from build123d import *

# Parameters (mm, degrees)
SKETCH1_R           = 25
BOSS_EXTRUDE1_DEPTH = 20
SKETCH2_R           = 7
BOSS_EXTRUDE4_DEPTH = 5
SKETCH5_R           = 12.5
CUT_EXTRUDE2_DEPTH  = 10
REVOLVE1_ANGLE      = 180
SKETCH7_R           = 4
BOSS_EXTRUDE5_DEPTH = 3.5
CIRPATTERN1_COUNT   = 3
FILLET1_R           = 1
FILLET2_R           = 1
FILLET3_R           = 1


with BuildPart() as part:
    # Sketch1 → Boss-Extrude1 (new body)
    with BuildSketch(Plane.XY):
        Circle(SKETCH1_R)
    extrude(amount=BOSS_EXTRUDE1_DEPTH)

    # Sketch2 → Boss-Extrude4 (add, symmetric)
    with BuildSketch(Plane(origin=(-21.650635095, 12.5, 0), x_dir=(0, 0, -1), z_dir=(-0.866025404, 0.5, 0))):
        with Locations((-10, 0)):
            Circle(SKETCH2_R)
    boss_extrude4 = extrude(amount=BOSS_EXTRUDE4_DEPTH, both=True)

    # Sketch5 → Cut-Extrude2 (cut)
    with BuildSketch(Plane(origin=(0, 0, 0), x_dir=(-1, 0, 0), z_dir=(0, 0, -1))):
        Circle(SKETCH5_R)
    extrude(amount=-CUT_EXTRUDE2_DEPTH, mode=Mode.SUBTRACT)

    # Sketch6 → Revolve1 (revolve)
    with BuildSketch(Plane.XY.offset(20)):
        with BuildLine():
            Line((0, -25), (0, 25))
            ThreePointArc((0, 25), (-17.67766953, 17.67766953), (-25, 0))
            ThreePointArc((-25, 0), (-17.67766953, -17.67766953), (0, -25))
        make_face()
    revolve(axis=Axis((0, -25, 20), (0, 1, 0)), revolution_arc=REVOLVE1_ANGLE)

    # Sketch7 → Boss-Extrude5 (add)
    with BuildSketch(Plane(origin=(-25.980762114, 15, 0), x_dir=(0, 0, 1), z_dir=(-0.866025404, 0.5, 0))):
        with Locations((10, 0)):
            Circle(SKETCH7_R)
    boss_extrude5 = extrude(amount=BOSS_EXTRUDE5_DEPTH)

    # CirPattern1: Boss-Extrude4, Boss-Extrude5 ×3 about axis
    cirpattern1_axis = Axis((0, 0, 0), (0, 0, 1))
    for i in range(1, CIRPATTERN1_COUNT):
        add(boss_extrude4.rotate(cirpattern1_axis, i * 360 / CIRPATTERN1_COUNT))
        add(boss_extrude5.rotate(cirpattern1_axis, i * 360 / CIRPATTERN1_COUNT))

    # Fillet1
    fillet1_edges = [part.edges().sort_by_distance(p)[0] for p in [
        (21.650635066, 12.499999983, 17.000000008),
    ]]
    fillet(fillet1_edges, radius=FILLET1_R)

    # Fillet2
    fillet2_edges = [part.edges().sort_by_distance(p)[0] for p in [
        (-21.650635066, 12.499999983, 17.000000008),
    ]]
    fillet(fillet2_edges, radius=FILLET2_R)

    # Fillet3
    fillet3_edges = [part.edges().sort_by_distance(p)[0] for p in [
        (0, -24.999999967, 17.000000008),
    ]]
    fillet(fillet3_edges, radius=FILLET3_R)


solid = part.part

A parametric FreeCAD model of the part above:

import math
import FreeCAD as App
import Part
import Sketcher
from FreeCAD import Vector


def edges_at(feature, points):
    """Names of the edges that pass closest to the given points."""
    edges = feature.Shape.Edges
    near = lambda p: min(range(len(edges)), key=lambda i: edges[i].distToShape(Part.Vertex(*p))[0])
    return sorted({f"Edge{near(p) + 1}" for p in points})

doc = App.newDocument("Part")
body = doc.addObject("PartDesign::Body", "Body")

sketch1 = doc.addObject("Sketcher::SketchObject", "Sketch")
body.addObject(sketch1)
sketch1.AttachmentSupport = (doc.XY_Plane, [""])
sketch1.MapMode = "FlatFace"
sketch1.addGeometry(Part.Circle(Vector(0, 0, 0), Vector(0, 0, 1), 25), False)
sketch1.addConstraint(Sketcher.Constraint("Coincident", 0, 3, -1, 1))
sketch1.addConstraint(Sketcher.Constraint("Diameter", 0, 50.0))
pad1 = doc.addObject("PartDesign::Pad", "Pad")
body.addObject(pad1)
pad1.Profile = sketch1
pad1.Length = 20

sketch2 = doc.addObject("Sketcher::SketchObject", "Sketch001")
body.addObject(sketch2)
sketch2.Placement = App.Placement(Vector(-21.650635, 12.5, 0), App.Rotation(Vector(0, 0, -1), Vector(-0.5, -0.866025404, 0), Vector(-0.866025404, 0.5, 0), "ZXY"))
sketch2.addGeometry(Part.Circle(Vector(-10, 0, 0), Vector(0, 0, 1), 7), False)
sketch2.addConstraint(Sketcher.Constraint("PointOnObject", 0, 3, -1))
sketch2.addConstraint(Sketcher.Constraint("Diameter", 0, 14.0))
sketch2.addConstraint(Sketcher.Constraint("DistanceX", 0, 3, -1, 1, 10.0))
pad2 = doc.addObject("PartDesign::Pad", "Pad001")
body.addObject(pad2)
pad2.Profile = sketch2
pad2.Length = 10
pad2.Midplane = True

sketch3 = doc.addObject("Sketcher::SketchObject", "Sketch002")
body.addObject(sketch3)
sketch3.AttachmentSupport = (doc.XY_Plane, [""])
sketch3.MapMode = "FlatFace"
sketch3.addGeometry(Part.Circle(Vector(0, 0, 0), Vector(0, 0, 1), 12), False)
sketch3.addConstraint(Sketcher.Constraint("Coincident", 0, 3, -1, 1))
sketch3.addConstraint(Sketcher.Constraint("Diameter", 0, 25.0))
pocket1 = doc.addObject("PartDesign::Pocket", "Pocket")
body.addObject(pocket1)
pocket1.Profile = sketch3
pocket1.Length = 10
pocket1.Reversed = True

sketch4 = doc.addObject("Sketcher::SketchObject", "Sketch003")
body.addObject(sketch4)
sketch4.AttachmentSupport = (doc.XY_Plane, [""])
sketch4.MapMode = "FlatFace"
sketch4.AttachmentOffset = App.Placement(Vector(0, 0, 20), App.Rotation())
sketch4.addGeometry(Part.LineSegment(Vector(0, -25, 0), Vector(0, 25, 0)), False)
sketch4.addGeometry(Part.ArcOfCircle(Part.Circle(Vector(0, 0, 0), Vector(0, 0, 1), 25), math.radians(90), math.radians(180)), False)
sketch4.addGeometry(Part.ArcOfCircle(Part.Circle(Vector(0, 0, 0), Vector(0, 0, 1), 25), math.radians(180), math.radians(270)), False)
sketch4.addConstraint(Sketcher.Constraint("Coincident", 0, 2, 1, 1))
sketch4.addConstraint(Sketcher.Constraint("Tangent", 1, 2, 2, 1))
sketch4.addConstraint(Sketcher.Constraint("Coincident", 2, 2, 0, 1))
sketch4.addConstraint(Sketcher.Constraint("Vertical", 0))
sketch4.addConstraint(Sketcher.Constraint("Coincident", 1, 3, -1, 1))
sketch4.addConstraint(Sketcher.Constraint("Equal", 1, 2))
sketch4.addConstraint(Sketcher.Constraint("PointOnObject", 0, 2, -2))
sketch4.addConstraint(Sketcher.Constraint("PointOnObject", 1, 2, -1))
sketch4.addConstraint(Sketcher.Constraint("Radius", 1, 25.0))
revolution = doc.addObject("PartDesign::Revolution", "Revolution")
body.addObject(revolution)
revolution.Profile = sketch4
revolution.ReferenceAxis = (sketch4, ["V_Axis"])
revolution.Angle = 180

sketch5 = doc.addObject("Sketcher::SketchObject", "Sketch004")
body.addObject(sketch5)
sketch5.Placement = App.Placement(Vector(-25.980762, 15, 0), App.Rotation(Vector(0, 0, 1), Vector(0.5, 0.866025404, 0), Vector(-0.866025404, 0.5, 0), "ZXY"))
sketch5.addGeometry(Part.Circle(Vector(10, 0, 0), Vector(0, 0, 1), 4), False)
sketch5.addConstraint(Sketcher.Constraint("PointOnObject", 0, 3, -1))
sketch5.addConstraint(Sketcher.Constraint("Diameter", 0, 8.0))
sketch5.addConstraint(Sketcher.Constraint("DistanceX", -1, 1, 0, 3, 10.0))
pad3 = doc.addObject("PartDesign::Pad", "Pad002")
body.addObject(pad3)
pad3.Profile = sketch5
pad3.Length = 3.5
doc.recompute()

polarpattern = doc.addObject("PartDesign::PolarPattern", "PolarPattern")
body.addObject(polarpattern)
polarpattern.Originals = [pad2, pad3]
polarpattern.Axis = (doc.Z_Axis, [""])
polarpattern.Angle = 360
polarpattern.Occurrences = 3
body.Tip = polarpattern
doc.recompute()

fillet = doc.addObject("PartDesign::Fillet", "Fillet")
body.addObject(fillet)
fillet.Base = (polarpattern, edges_at(polarpattern, [(21.651, 12.5, 17)]))
fillet.Radius = 1
doc.recompute()

fillet2 = doc.addObject("PartDesign::Fillet", "Fillet001")
body.addObject(fillet2)
fillet2.Base = (fillet, edges_at(fillet, [(-21.651, 12.5, 17)]))
fillet2.Radius = 1
doc.recompute()

fillet3 = doc.addObject("PartDesign::Fillet", "Fillet002")
body.addObject(fillet3)
fillet3.Base = (fillet2, edges_at(fillet2, [(0, -25, 17)]))
fillet3.Radius = 1

doc.recompute()
